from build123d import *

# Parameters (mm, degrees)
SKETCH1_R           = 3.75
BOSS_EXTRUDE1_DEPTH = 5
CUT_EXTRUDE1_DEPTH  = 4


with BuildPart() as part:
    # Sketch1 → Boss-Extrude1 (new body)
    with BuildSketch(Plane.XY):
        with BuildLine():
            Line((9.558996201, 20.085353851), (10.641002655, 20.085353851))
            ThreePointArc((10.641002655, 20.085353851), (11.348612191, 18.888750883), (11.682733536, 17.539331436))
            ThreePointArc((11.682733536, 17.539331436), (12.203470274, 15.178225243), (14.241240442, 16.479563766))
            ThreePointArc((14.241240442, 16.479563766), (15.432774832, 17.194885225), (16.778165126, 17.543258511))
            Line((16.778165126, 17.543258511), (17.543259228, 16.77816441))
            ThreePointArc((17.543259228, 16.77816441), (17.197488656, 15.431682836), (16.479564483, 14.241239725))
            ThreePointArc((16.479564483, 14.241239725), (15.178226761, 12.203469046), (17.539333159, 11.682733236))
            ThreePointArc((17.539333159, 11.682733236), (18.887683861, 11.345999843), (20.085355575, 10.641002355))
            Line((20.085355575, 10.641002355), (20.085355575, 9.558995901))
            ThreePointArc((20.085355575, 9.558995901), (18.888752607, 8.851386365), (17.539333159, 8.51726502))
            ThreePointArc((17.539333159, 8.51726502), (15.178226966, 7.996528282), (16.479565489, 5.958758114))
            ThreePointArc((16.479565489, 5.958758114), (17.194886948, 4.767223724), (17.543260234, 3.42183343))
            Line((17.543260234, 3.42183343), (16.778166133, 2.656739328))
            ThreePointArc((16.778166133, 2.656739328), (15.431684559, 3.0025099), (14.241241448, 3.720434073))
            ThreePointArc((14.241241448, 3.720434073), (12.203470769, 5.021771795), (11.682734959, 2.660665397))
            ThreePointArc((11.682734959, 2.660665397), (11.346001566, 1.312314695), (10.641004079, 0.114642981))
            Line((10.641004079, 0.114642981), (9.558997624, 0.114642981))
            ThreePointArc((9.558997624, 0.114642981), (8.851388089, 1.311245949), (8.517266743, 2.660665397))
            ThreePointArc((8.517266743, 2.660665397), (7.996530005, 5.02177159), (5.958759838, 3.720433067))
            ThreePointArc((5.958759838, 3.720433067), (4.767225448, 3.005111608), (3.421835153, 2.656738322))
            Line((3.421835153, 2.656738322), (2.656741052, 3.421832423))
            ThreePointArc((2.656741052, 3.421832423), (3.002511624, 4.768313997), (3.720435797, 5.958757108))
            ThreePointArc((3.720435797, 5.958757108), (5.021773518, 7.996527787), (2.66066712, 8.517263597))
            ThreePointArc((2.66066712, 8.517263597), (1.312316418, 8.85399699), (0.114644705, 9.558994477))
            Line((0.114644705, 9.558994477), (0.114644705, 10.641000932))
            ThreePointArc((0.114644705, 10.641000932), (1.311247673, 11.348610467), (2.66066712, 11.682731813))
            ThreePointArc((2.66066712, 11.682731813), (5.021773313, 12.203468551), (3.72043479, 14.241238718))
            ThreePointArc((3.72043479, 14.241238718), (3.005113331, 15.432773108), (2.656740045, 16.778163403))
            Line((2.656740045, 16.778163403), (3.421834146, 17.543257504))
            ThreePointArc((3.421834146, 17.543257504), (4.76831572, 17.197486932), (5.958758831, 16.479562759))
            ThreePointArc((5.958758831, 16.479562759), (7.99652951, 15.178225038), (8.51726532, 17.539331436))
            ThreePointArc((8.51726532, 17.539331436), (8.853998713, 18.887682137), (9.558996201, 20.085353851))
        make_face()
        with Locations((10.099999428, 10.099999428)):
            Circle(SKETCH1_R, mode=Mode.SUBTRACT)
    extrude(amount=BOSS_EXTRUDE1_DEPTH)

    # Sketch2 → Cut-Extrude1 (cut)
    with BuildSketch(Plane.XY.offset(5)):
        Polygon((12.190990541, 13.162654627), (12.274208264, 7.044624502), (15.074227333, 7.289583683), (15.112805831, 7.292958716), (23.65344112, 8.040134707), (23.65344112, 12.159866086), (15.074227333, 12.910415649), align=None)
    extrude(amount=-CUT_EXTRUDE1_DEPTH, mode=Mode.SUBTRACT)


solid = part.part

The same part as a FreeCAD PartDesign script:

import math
import FreeCAD as App
import Part
import Sketcher
from FreeCAD import Vector
Q = App.Units.Quantity

doc = App.newDocument("Part")
body = doc.addObject("PartDesign::Body", "Body")

sketch1 = doc.addObject("Sketcher::SketchObject", "Sketch")
body.addObject(sketch1)
sketch1.AttachmentSupport = (doc.XY_Plane, [""])
sketch1.MapMode = "FlatFace"
sketch1.addGeometry([
    Part.LineSegment(Vector(10.6, 20.1, 0), Vector(9.6, 20.1, 0)),
    Part.ArcOfCircle(Part.Circle(Vector(13.3, 17, 0), Vector(0, 0, 1), 4.9), math.radians(141), math.radians(174)),
    Part.ArcOfCircle(Part.Circle(Vector(7.4, 16.5, 0), Vector(0, 0, 1), 1.5), math.radians(-178), math.radians(43)),
    Part.ArcOfCircle(Part.Circle(Vector(2.9, 12.8, 0), Vector(0, 0, 1), 4.8), math.radians(51), math.radians(84)),
    Part.LineSegment(Vector(3.4, 17.5, 0), Vector(2.7, 16.8, 0)),
    Part.ArcOfCircle(Part.Circle(Vector(7.5, 17.3, 0), Vector(0, 0, 1), 4.9), math.radians(-174), math.radians(-141)),
    Part.ArcOfCircle(Part.Circle(Vector(3.7, 12.8, 0), Vector(0, 0, 1), 1.5), math.radians(-133), math.radians(88)),
    Part.ArcOfCircle(Part.Circle(Vector(3.1, 6.9, 0), Vector(0, 0, 1), 4.8), math.radians(96), math.radians(129)),
    Part.LineSegment(Vector(0.1, 10.6, 0), Vector(0.1, 9.6, 0)),
    Part.ArcOfCircle(Part.Circle(Vector(3.2, 13.3, 0), Vector(0, 0, 1), 4.9), math.radians(-129), math.radians(-96)),
    Part.ArcOfCircle(Part.Circle(Vector(3.7, 7.4, 0), Vector(0, 0, 1), 1.5), math.radians(-88), math.radians(133)),
    Part.ArcOfCircle(Part.Circle(Vector(7.4, 2.9, 0), Vector(0, 0, 1), 4.8), math.radians(141), math.radians(174)),
    Part.LineSegment(Vector(2.7, 3.4, 0), Vector(3.4, 2.7, 0)),
    Part.ArcOfCircle(Part.Circle(Vector(2.9, 7.5, 0), Vector(0, 0, 1), 4.9), math.radians(-84), math.radians(-51)),
    Part.ArcOfCircle(Part.Circle(Vector(7.4, 3.7, 0), Vector(0, 0, 1), 1.5), math.radians(-43), math.radians(178)),
    Part.ArcOfCircle(Part.Circle(Vector(13.3, 3.1, 0), Vector(0, 0, 1), 4.8), math.radians(-174), math.radians(-141)),
    Part.LineSegment(Vector(9.6, 0.1, 0), Vector(10.6, 0.1, 0)),
    Part.ArcOfCircle(Part.Circle(Vector(6.9, 3.2, 0), Vector(0, 0, 1), 4.9), math.radians(-39), math.radians(-6)),
    Part.ArcOfCircle(Part.Circle(Vector(12.8, 3.7, 0), Vector(0, 0, 1), 1.5), math.radians(2), math.radians(223)),
    Part.ArcOfCircle(Part.Circle(Vector(17.3, 7.4, 0), Vector(0, 0, 1), 4.8), math.radians(-129), math.radians(-96)),
    Part.LineSegment(Vector(16.8, 2.7, 0), Vector(17.5, 3.4, 0)),
    Part.ArcOfCircle(Part.Circle(Vector(12.7, 2.9, 0), Vector(0, 0, 1), 4.9), math.radians(6), math.radians(39)),
    Part.ArcOfCircle(Part.Circle(Vector(16.5, 7.4, 0), Vector(0, 0, 1), 1.5), math.radians(47), math.radians(268)),
    Part.ArcOfCircle(Part.Circle(Vector(17.1, 13.3, 0), Vector(0, 0, 1), 4.8), math.radians(-84), math.radians(-51)),
    Part.LineSegment(Vector(20.1, 9.6, 0), Vector(20.1, 10.6, 0)),
    Part.ArcOfCircle(Part.Circle(Vector(17, 6.9, 0), Vector(0, 0, 1), 4.9), math.radians(51), math.radians(84)),
    Part.ArcOfCircle(Part.Circle(Vector(16.5, 12.8, 0), Vector(0, 0, 1), 1.5), math.radians(92), math.radians(313)),
    Part.ArcOfCircle(Part.Circle(Vector(12.8, 17.3, 0), Vector(0, 0, 1), 4.8), math.radians(-39), math.radians(-6)),
    Part.LineSegment(Vector(17.5, 16.8, 0), Vector(16.8, 17.5, 0)),
    Part.ArcOfCircle(Part.Circle(Vector(17.3, 12.7, 0), Vector(0, 0, 1), 4.9), math.radians(96), math.radians(129)),
    Part.ArcOfCircle(Part.Circle(Vector(12.8, 16.5, 0), Vector(0, 0, 1), 1.5), math.radians(137), math.radians(358)),
    Part.ArcOfCircle(Part.Circle(Vector(6.9, 17.1, 0), Vector(0, 0, 1), 4.8), math.radians(6), math.radians(39)),
    Part.Circle(Vector(10.1, 10.1, 0), Vector(0, 0, 1), 3.8),
], False)
sketch1.addConstraint([
    Sketcher.Constraint("Coincident", 0, 2, 1, 1),
    Sketcher.Constraint("Coincident", 1, 2, 2, 2),
    Sketcher.Constraint("Coincident", 2, 1, 3, 1),
    Sketcher.Constraint("Coincident", 3, 2, 4, 1),
    Sketcher.Constraint("Coincident", 4, 2, 5, 1),
    Sketcher.Constraint("Coincident", 5, 2, 6, 2),
    Sketcher.Constraint("Coincident", 6, 1, 7, 1),
    Sketcher.Constraint("Coincident", 7, 2, 8, 1),
    Sketcher.Constraint("Coincident", 8, 2, 9, 1),
    Sketcher.Constraint("Coincident", 9, 2, 10, 2),
    Sketcher.Constraint("Coincident", 10, 1, 11, 1),
    Sketcher.Constraint("Coincident", 11, 2, 12, 1),
    Sketcher.Constraint("Coincident", 12, 2, 13, 1),
    Sketcher.Constraint("Coincident", 13, 2, 14, 2),
    Sketcher.Constraint("Coincident", 14, 1, 15, 1),
    Sketcher.Constraint("Coincident", 15, 2, 16, 1),
    Sketcher.Constraint("Coincident", 16, 2, 17, 1),
    Sketcher.Constraint("Coincident", 17, 2, 18, 2),
    Sketcher.Constraint("Coincident", 18, 1, 19, 1),
    Sketcher.Constraint("Coincident", 19, 2, 20, 1),
    Sketcher.Constraint("Coincident", 20, 2, 21, 1),
    Sketcher.Constraint("Coincident", 21, 2, 22, 2),
    Sketcher.Constraint("Coincident", 22, 1, 23, 1),
    Sketcher.Constraint("Coincident", 23, 2, 24, 1),
    Sketcher.Constraint("Coincident", 24, 2, 25, 1),
    Sketcher.Constraint("Coincident", 25, 2, 26, 2),
    Sketcher.Constraint("Coincident", 26, 1, 27, 1),
    Sketcher.Constraint("Coincident", 27, 2, 28, 1),
    Sketcher.Constraint("Coincident", 28, 2, 29, 1),
    Sketcher.Constraint("Coincident", 29, 2, 30, 2),
    Sketcher.Constraint("Coincident", 30, 1, 31, 1),
    Sketcher.Constraint("Coincident", 31, 2, 0, 1),
    Sketcher.Constraint("Horizontal", 0),
    Sketcher.Constraint("Vertical", 8),
    Sketcher.Constraint("Horizontal", 16),
    Sketcher.Constraint("Vertical", 24),
    Sketcher.Constraint("Equal", 1, 5),
    Sketcher.Constraint("Equal", 2, 6),
    Sketcher.Constraint("Equal", 3, 7),
    Sketcher.Constraint("Equal", 5, 9),
    Sketcher.Constraint("Equal", 6, 10),
    Sketcher.Constraint("Equal", 7, 11),
    Sketcher.Constraint("Equal", 9, 13),
    Sketcher.Constraint("Equal", 10, 14),
    Sketcher.Constraint("Equal", 11, 15),
    Sketcher.Constraint("Equal", 13, 17),
    Sketcher.Constraint("Equal", 14, 18),
    Sketcher.Constraint("Equal", 15, 19),
    Sketcher.Constraint("Equal", 17, 21),
    Sketcher.Constraint("Equal", 18, 22),
    Sketcher.Constraint("Equal", 19, 23),
    Sketcher.Constraint("Equal", 21, 25),
    Sketcher.Constraint("Equal", 22, 26),
    Sketcher.Constraint("Equal", 23, 27),
    Sketcher.Constraint("Equal", 25, 29),
    Sketcher.Constraint("Equal", 26, 30),
    Sketcher.Constraint("Equal", 27, 31),
    Sketcher.Constraint("Perpendicular", 4, 12),
    Sketcher.Constraint("Perpendicular", 12, 20),
    Sketcher.Constraint("Perpendicular", 20, 28),
    Sketcher.Constraint("Horizontal", 14, 3, 18, 3),
    Sketcher.Constraint("Horizontal", 10, 3, 22, 3),
    Sketcher.Constraint("Horizontal", 6, 3, 26, 3),
    Sketcher.Constraint("Horizontal", 2, 3, 30, 3),
    Sketcher.Constraint("Horizontal", 14, 1, 17, 2),
    Sketcher.Constraint("Horizontal", 13, 2, 18, 1),
    Sketcher.Constraint("Horizontal", 12, 2, 19, 2),
    Sketcher.Constraint("Horizontal", 11, 2, 20, 2),
    Sketcher.Constraint("Horizontal", 10, 1, 21, 2),
    Sketcher.Constraint("Horizontal", 9, 2, 22, 1),
    Sketcher.Constraint("Horizontal", 8, 2, 23, 2),
    Sketcher.Constraint("Horizontal", 7, 2, 24, 2),
    Sketcher.Constraint("Horizontal", 6, 1, 25, 2),
    Sketcher.Constraint("Horizontal", 5, 2, 26, 1),
    Sketcher.Constraint("Horizontal", 4, 2, 27, 2),
    Sketcher.Constraint("Horizontal", 3, 2, 28, 2),
    Sketcher.Constraint("Horizontal", 2, 1, 29, 2),
    Sketcher.Constraint("Horizontal", 1, 2, 30, 1),
    Sketcher.Constraint("Vertical", 6, 3, 10, 3),
    Sketcher.Constraint("Vertical", 2, 3, 14, 3),
    Sketcher.Constraint("Vertical", 22, 3, 26, 3),
    Sketcher.Constraint("Vertical", 18, 3, 30, 3),
    Sketcher.Constraint("Vertical", 6, 1, 9, 2),
    Sketcher.Constraint("Vertical", 5, 2, 10, 1),
    Sketcher.Constraint("Vertical", 4, 2, 11, 2),
    Sketcher.Constraint("Vertical", 3, 2, 12, 2),
    Sketcher.Constraint("Vertical", 2, 1, 13, 2),
    Sketcher.Constraint("Vertical", 1, 2, 14, 1),
    Sketcher.Constraint("Vertical", 0, 2, 15, 2),
    Sketcher.Constraint("Vertical", 20, 2, 27, 2),
    Sketcher.Constraint("Vertical", 19, 2, 28, 2),
    Sketcher.Constraint("Vertical", 16, 2, 31, 2),
    Sketcher.Constraint("Equal", 16, 8),
    Sketcher.Constraint("Diameter", 32, Q("7.5 mm")),
    Sketcher.Constraint("DistanceX", -1, 1, 32, 3, Q("10.099999 mm")),
    Sketcher.Constraint("DistanceY", -1, 1, 32, 3, Q("10.099999 mm")),
    Sketcher.Constraint("Radius", 1, Q("4.854109 mm")),
    Sketcher.Constraint("DistanceY", -1, 1, 7, 2, Q("10.641001 mm")),
    Sketcher.Constraint("Radius", 2, Q("1.474695 mm")),
    Sketcher.Constraint("Radius", 3, Q("4.789016 mm")),
    Sketcher.Constraint("DistanceX", 7, 3, 2, 3, Q("4.307399 mm")),
    Sketcher.Constraint("DistanceY", 15, 3, 10, 3, Q("4.307399 mm")),
    Sketcher.Constraint("DistanceY", 6, 3, 31, 3, Q("4.3074 mm")),
    Sketcher.Constraint("DistanceX", 2, 1, 31, 3, Q("0.957502 mm")),
    Sketcher.Constraint("DistanceY", 2, 1, 4, 2, Q("0.298601 mm")),
    Sketcher.Constraint("DistanceY", 10, 1, 7, 3, Q("0.957502 mm")),
    Sketcher.Constraint("DistanceX", 12, 2, 10, 1, Q("0.298601 mm")),
    Sketcher.Constraint("DistanceX", 15, 3, 18, 1, Q("0.957502 mm")),
    Sketcher.Constraint("DistanceY", 20, 2, 18, 1, Q("0.298601 mm")),
    Sketcher.Constraint("DistanceY", 23, 3, 26, 1, Q("0.957502 mm")),
    Sketcher.Constraint("DistanceX", 26, 1, 28, 2, Q("0.298601 mm")),
    Sketcher.Constraint("DistanceX", 0, 2, 0, 1, Q("1.082006 mm")),
    Sketcher.Constraint("DistanceY", -1, 1, 1, 3, Q("17.049491 mm")),
    Sketcher.Constraint("DistanceY", -1, 1, 5, 3, Q("17.309721 mm")),
    Sketcher.Constraint("DistanceY", -1, 1, 6, 3, Q("12.76781 mm")),
    Sketcher.Constraint("DistanceX", -1, 1, 7, 3, Q("3.124789 mm")),
    Sketcher.Constraint("DistanceY", -1, 1, 7, 3, Q("6.916259 mm")),
    Sketcher.Constraint("DistanceY", -1, 1, 14, 3, Q("3.659331 mm")),
    Sketcher.Constraint("DistanceX", -1, 1, 15, 3, Q("13.283739 mm")),
    Sketcher.Constraint("DistanceX", -1, 1, 23, 3, Q("17.075211 mm")),
    Sketcher.Constraint("DistanceY", -1, 1, 29, 3, Q("12.718342 mm")),
    Sketcher.Constraint("DistanceY", -1, 1, 1, 2, Q("17.539331 mm")),
    Sketcher.Constraint("DistanceX", -1, 1, 4, 2, Q("2.65674 mm")),
])
pad1 = doc.addObject("PartDesign::Pad", "Pad")
body.addObject(pad1)
pad1.Profile = sketch1
pad1.Length = 5

sketch2 = doc.addObject("Sketcher::SketchObject", "Sketch001")
body.addObject(sketch2)
sketch2.AttachmentSupport = (doc.XY_Plane, [""])
sketch2.MapMode = "FlatFace"
sketch2.AttachmentOffset = App.Placement(Vector(0, 0, 5), App.Rotation())
sketch2.addGeometry([
    Part.LineSegment(Vector(12.191, 13.163, 0), Vector(12.274, 7.045, 0)),
    Part.LineSegment(Vector(12.274, 7.045, 0), Vector(15.074, 7.29, 0)),
    Part.LineSegment(Vector(15.074, 7.29, 0), Vector(15.113, 7.293, 0)),
    Part.LineSegment(Vector(15.113, 7.293, 0), Vector(23.653, 8.04, 0)),
    Part.LineSegment(Vector(23.653, 8.04, 0), Vector(23.653, 12.16, 0)),
    Part.LineSegment(Vector(23.653, 12.16, 0), Vector(15.074, 12.91, 0)),
    Part.LineSegment(Vector(15.074, 12.91, 0), Vector(12.191, 13.163, 0)),
], False)
sketch2.addConstraint([
    Sketcher.Constraint("Coincident", 0, 2, 1, 1),
    Sketcher.Constraint("Coincident", 1, 2, 2, 1),
    Sketcher.Constraint("Coincident", 2, 2, 3, 1),
    Sketcher.Constraint("Coincident", 3, 2, 4, 1),
    Sketcher.Constraint("Coincident", 4, 2, 5, 1),
    Sketcher.Constraint("Coincident", 5, 2, 6, 1),
    Sketcher.Constraint("Coincident", 6, 2, 0, 1),
    Sketcher.Constraint("Vertical", 4),
    Sketcher.Constraint("Parallel", 1, 2),
    Sketcher.Constraint("Parallel", 2, 3),
    Sketcher.Constraint("Parallel", 5, 6),
    Sketcher.Constraint("Vertical", 1, 2, 5, 2),
    Sketcher.Constraint("DistanceY", 4, 1, 4, 2, Q("4.119731 mm")),
    Sketcher.Constraint("Distance", 5, Q("8.611982 mm")),
    Sketcher.Constraint("Distance", 6, Q("2.894249 mm")),
    Sketcher.Constraint("DistanceX", -1, 1, 0, 2, Q("12.274208 mm")),
    Sketcher.Constraint("DistanceY", -1, 1, 2, 2, Q("7.292959 mm")),
    Sketcher.Constraint("DistanceX", -1, 1, 3, 2, Q("23.653441 mm")),
    Sketcher.Constraint("DistanceX", -1, 1, 6, 2, Q("12.190991 mm")),
    Sketcher.Constraint("DistanceY", 0, 2, 1, 2, Q("0.244959 mm")),
    Sketcher.Constraint("DistanceX", 1, 2, 2, 2, Q("0.038578 mm")),
])
pocket1 = doc.addObject("PartDesign::Pocket", "Pocket")
body.addObject(pocket1)
pocket1.Profile = sketch2
pocket1.Length = 4

doc.recompute()
